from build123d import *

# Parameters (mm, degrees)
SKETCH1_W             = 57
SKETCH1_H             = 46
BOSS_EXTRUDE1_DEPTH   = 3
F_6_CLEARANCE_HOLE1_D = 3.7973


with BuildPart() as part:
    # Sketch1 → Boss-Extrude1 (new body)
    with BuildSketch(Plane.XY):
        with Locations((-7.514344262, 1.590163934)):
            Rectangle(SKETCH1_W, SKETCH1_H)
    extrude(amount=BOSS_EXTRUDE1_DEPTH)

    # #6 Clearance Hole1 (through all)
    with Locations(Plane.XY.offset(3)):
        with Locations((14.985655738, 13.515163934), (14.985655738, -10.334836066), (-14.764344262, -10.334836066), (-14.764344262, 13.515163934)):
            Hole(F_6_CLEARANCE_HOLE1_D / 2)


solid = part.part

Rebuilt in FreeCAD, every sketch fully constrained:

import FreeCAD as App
import Part
import Sketcher

V = App.Vector
Q = App.Units.Quantity

doc = App.newDocument("Part")
body = doc.addObject("PartDesign::Body", "Body")

# Sketch on XY plane
sketch1 = body.newObject("Sketcher::SketchObject", "Sketch")
sketch1.AttachmentSupport = (doc.getObject("XY_Plane"), [""])
sketch1.MapMode = "FlatFace"
sketch1.addGeometry(Part.LineSegment(V(-36, 25, 0), V(-36, -21, 0)), False)
sketch1.addGeometry(Part.LineSegment(V(-36, -21, 0), V(21, -21, 0)), False)
sketch1.addGeometry(Part.LineSegment(V(21, -21, 0), V(21, 25, 0)), False)
sketch1.addGeometry(Part.LineSegment(V(21, 25, 0), V(-36, 25, 0)), False)
sketch1.addConstraint(Sketcher.Constraint("Coincident", 0, 2, 1, 1))
sketch1.addConstraint(Sketcher.Constraint("Coincident", 1, 2, 2, 1))
sketch1.addConstraint(Sketcher.Constraint("Coincident", 2, 2, 3, 1))
sketch1.addConstraint(Sketcher.Constraint("Coincident", 3, 2, 0, 1))
sketch1.addConstraint(Sketcher.Constraint("Vertical", 0))
sketch1.addConstraint(Sketcher.Constraint("Horizontal", 1))
sketch1.addConstraint(Sketcher.Constraint("Vertical", 2))
sketch1.addConstraint(Sketcher.Constraint("Horizontal", 3))
sketch1.addConstraint(Sketcher.Constraint("DistanceX", 1, 1, 1, 2, Q("57 mm")))
sketch1.addConstraint(Sketcher.Constraint("DistanceY", 0, 2, 0, 1, Q("46 mm")))
sketch1.addConstraint(Sketcher.Constraint("DistanceX", 0, 2, -1, 1, Q("36.014344 mm")))
sketch1.addConstraint(Sketcher.Constraint("DistanceY", 0, 2, -1, 1, Q("21.409836 mm")))
pad1 = body.newObject("PartDesign::Pad", "Pad")
pad1.Profile = sketch1
pad1.Length = 3

# Sketch on XY plane
sketch2 = body.newObject("Sketcher::SketchObject", "Sketch001")
sketch2.AttachmentSupport = (doc.getObject("XY_Plane"), [""])
sketch2.MapMode = "FlatFace"
sketch2.AttachmentOffset = App.Placement(V(0, 0, 3), App.Rotation())
sketch2.addGeometry(Part.Circle(V(15, 13.5, 0), V(0, 0, 1), 1.9), False)
sketch2.addGeometry(Part.Circle(V(15, -10.3, 0), V(0, 0, 1), 1.9), False)
sketch2.addGeometry(Part.Circle(V(-14.8, -10.3, 0), V(0, 0, 1), 1.9), False)
sketch2.addGeometry(Part.Circle(V(-14.8, 13.5, 0), V(0, 0, 1), 1.9), False)
sketch2.addConstraint(Sketcher.Constraint("Equal", 0, 1))
sketch2.addConstraint(Sketcher.Constraint("Equal", 1, 2))
sketch2.addConstraint(Sketcher.Constraint("Equal", 2, 3))
sketch2.addConstraint(Sketcher.Constraint("Horizontal", 1, 3, 2, 3))
sketch2.addConstraint(Sketcher.Constraint("Horizontal", 0, 3, 3, 3))
sketch2.addConstraint(Sketcher.Constraint("Vertical", 0, 3, 1, 3))
sketch2.addConstraint(Sketcher.Constraint("Vertical", 2, 3, 3, 3))
sketch2.addConstraint(Sketcher.Constraint("Diameter", 0, Q("3.7973 mm")))
sketch2.addConstraint(Sketcher.Constraint("DistanceY", 1, 3, 0, 3, Q("23.85 mm")))
sketch2.addConstraint(Sketcher.Constraint("DistanceX", 2, 3, 1, 3, Q("29.75 mm")))
sketch2.addConstraint(Sketcher.Constraint("DistanceX", -1, 1, 0, 3, Q("14.985656 mm")))
sketch2.addConstraint(Sketcher.Constraint("DistanceY", -1, 1, 0, 3, Q("13.515164 mm")))
doc.recompute()
hole = body.newObject("PartDesign::Hole", "Hole")
hole.Profile = sketch2
hole.ThreadType = "None"
hole.Diameter = 3.7973
hole.DepthType = "ThroughAll"

doc.recompute()
